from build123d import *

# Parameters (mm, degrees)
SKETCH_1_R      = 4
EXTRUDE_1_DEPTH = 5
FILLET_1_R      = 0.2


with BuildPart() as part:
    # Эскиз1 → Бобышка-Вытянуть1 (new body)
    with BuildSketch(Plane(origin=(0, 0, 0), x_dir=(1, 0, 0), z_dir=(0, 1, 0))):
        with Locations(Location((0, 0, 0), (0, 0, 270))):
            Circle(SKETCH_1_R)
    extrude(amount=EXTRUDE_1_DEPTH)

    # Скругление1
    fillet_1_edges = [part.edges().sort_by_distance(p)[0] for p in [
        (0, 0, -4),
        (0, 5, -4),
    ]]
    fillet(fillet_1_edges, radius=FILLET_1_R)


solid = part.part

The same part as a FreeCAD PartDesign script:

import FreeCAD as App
import Part
import Sketcher

V = App.Vector
Q = App.Units.Quantity


def edges_at(feature, points):
    """Names of the edges that pass closest to the given points."""
    edges = feature.Shape.Edges
    near = lambda p: min(range(len(edges)), key=lambda i: edges[i].distToShape(Part.Vertex(*p))[0])
    return sorted({f"Edge{near(p) + 1}" for p in points})

doc = App.newDocument("Part")
body = doc.addObject("PartDesign::Body", "Body")

# Sketch on XZ plane
sketch1 = body.newObject("Sketcher::SketchObject", "Sketch")
sketch1.AttachmentSupport = (doc.getObject("XZ_Plane"), [""])
sketch1.MapMode = "FlatFace"
sketch1.addGeometry(Part.Circle(V(0, 0, 0), V(0, 0, 1), 4), False)
sketch1.addConstraint([
    Sketcher.Constraint("Coincident", 0, 3, -1, 1),
    Sketcher.Constraint("Diameter", 0, Q("8 mm")),
])
pad1 = body.newObject("PartDesign::Pad", "Pad")
pad1.Profile = sketch1
pad1.Length = 5
pad1.Reversed = True
doc.recompute()

fillet = body.newObject("PartDesign::Fillet", "Fillet")
fillet.Base = (pad1, edges_at(pad1, [(0, 0, -4), (0, 5, -4)]))
fillet.Radius = 0.2

doc.recompute()
